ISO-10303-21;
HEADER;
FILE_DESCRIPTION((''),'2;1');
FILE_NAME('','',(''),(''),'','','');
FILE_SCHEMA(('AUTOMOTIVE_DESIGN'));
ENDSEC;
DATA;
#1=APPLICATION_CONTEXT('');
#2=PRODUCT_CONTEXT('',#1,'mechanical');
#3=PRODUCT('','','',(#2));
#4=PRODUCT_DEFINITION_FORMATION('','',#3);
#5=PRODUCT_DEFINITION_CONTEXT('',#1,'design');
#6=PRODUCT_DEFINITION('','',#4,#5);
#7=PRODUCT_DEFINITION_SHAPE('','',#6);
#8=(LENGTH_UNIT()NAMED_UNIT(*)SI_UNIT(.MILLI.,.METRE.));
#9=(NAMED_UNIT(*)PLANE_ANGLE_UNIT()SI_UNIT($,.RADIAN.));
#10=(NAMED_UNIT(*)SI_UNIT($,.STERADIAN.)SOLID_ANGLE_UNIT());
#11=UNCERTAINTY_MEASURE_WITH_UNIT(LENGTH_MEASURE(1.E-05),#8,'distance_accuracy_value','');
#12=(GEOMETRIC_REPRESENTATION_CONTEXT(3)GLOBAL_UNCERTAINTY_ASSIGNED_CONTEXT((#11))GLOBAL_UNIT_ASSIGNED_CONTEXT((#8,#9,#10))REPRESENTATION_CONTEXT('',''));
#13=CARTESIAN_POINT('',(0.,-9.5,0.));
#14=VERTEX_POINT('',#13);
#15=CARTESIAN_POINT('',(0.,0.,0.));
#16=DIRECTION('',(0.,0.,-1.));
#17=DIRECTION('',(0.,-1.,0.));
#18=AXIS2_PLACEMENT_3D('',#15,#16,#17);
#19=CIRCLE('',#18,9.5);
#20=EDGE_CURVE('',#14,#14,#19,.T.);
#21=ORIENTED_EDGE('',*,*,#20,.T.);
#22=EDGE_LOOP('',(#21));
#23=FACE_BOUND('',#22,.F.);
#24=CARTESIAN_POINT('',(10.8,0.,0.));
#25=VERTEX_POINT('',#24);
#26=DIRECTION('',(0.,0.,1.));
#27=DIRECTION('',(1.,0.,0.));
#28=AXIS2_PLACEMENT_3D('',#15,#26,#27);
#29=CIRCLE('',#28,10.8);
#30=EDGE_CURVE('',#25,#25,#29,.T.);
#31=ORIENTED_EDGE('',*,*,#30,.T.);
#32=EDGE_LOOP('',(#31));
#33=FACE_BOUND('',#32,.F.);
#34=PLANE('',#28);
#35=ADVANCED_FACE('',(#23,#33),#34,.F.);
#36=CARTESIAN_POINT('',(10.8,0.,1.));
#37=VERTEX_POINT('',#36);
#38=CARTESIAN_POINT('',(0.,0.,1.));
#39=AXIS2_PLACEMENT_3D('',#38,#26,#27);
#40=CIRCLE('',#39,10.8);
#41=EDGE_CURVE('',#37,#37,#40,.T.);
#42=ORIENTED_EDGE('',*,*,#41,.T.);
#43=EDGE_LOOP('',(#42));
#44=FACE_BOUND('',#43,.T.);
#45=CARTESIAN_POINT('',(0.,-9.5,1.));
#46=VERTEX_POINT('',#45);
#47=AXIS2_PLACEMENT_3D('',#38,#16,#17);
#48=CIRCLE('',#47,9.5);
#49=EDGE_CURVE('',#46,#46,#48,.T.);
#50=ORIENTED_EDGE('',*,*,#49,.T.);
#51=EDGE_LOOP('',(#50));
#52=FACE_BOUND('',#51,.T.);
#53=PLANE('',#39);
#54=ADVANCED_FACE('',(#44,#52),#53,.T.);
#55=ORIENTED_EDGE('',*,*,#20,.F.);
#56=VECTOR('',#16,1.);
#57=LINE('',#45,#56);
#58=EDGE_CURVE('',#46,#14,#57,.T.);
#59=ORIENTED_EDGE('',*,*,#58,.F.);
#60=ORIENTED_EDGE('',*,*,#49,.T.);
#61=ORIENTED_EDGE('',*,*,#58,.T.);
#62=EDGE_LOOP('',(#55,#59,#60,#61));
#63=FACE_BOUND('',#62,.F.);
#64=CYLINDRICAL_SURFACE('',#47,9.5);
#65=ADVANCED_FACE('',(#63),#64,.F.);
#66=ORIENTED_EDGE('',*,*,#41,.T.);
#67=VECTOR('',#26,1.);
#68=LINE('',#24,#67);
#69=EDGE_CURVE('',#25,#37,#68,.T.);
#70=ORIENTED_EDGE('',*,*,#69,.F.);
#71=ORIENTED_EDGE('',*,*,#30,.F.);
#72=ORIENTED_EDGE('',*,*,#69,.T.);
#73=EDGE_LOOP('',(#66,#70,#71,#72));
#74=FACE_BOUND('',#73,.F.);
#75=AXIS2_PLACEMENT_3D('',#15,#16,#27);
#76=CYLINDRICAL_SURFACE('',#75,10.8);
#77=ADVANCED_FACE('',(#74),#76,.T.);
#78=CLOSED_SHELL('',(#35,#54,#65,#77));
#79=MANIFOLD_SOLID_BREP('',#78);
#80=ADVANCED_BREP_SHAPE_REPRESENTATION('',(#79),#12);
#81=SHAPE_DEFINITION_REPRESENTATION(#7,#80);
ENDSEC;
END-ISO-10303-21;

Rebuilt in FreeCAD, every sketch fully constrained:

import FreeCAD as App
import Part
import Sketcher

V = App.Vector

doc = App.newDocument("Part")
params = doc.addObject("Spreadsheet::Sheet", "Params")
for row, (alias, value) in enumerate([
    ("sketch1_diameter", "21.6 mm"),
    ("pad1_length", "1 mm"),
    ("sketch2_diameter", "19 mm"),
    ("hole_diameter", "19 mm"),
], start=1):
    params.set(f"A{row}", alias)
    params.set(f"B{row}", "=" + value)
    params.setAlias(f"B{row}", alias)

body = doc.addObject("PartDesign::Body", "Body")

# Sketch on XY plane
sketch1 = body.newObject("Sketcher::SketchObject", "Sketch")
sketch1.AttachmentSupport = (doc.getObject("XY_Plane"), [""])
sketch1.MapMode = "FlatFace"
sketch1.addGeometry(Part.Circle(V(0, 0, 0), V(0, 0, 1), 10.8), False)
sketch1.addConstraint([
    Sketcher.Constraint("Coincident", 0, 3, -1, 1),
    Sketcher.Constraint("Diameter", 0, 21.6),
])
sketch1.setExpression("Constraints[1]", "Params.sketch1_diameter")
pad1 = body.newObject("PartDesign::Pad", "Pad")
pad1.Profile = sketch1
pad1.setExpression("Length", "Params.pad1_length")

# Sketch on XY plane
sketch2 = body.newObject("Sketcher::SketchObject", "Sketch001")
sketch2.AttachmentSupport = (doc.getObject("XY_Plane"), [""])
sketch2.MapMode = "FlatFace"
sketch2.AttachmentOffset = App.Placement(V(0, 0, 1), App.Rotation())
sketch2.addGeometry(Part.Circle(V(0, 0, 0), V(0, 0, 1), 9.5), False)
sketch2.addConstraint([
    Sketcher.Constraint("Coincident", 0, 3, -1, 1),
    Sketcher.Constraint("Diameter", 0, 19.0),
])
sketch2.setExpression("Constraints[1]", "Params.sketch2_diameter")
doc.recompute()
hole = body.newObject("PartDesign::Hole", "Hole")
hole.Profile = sketch2
hole.ThreadType = "None"
hole.setExpression("Diameter", "Params.hole_diameter")
hole.DepthType = "ThroughAll"

doc.recompute()
